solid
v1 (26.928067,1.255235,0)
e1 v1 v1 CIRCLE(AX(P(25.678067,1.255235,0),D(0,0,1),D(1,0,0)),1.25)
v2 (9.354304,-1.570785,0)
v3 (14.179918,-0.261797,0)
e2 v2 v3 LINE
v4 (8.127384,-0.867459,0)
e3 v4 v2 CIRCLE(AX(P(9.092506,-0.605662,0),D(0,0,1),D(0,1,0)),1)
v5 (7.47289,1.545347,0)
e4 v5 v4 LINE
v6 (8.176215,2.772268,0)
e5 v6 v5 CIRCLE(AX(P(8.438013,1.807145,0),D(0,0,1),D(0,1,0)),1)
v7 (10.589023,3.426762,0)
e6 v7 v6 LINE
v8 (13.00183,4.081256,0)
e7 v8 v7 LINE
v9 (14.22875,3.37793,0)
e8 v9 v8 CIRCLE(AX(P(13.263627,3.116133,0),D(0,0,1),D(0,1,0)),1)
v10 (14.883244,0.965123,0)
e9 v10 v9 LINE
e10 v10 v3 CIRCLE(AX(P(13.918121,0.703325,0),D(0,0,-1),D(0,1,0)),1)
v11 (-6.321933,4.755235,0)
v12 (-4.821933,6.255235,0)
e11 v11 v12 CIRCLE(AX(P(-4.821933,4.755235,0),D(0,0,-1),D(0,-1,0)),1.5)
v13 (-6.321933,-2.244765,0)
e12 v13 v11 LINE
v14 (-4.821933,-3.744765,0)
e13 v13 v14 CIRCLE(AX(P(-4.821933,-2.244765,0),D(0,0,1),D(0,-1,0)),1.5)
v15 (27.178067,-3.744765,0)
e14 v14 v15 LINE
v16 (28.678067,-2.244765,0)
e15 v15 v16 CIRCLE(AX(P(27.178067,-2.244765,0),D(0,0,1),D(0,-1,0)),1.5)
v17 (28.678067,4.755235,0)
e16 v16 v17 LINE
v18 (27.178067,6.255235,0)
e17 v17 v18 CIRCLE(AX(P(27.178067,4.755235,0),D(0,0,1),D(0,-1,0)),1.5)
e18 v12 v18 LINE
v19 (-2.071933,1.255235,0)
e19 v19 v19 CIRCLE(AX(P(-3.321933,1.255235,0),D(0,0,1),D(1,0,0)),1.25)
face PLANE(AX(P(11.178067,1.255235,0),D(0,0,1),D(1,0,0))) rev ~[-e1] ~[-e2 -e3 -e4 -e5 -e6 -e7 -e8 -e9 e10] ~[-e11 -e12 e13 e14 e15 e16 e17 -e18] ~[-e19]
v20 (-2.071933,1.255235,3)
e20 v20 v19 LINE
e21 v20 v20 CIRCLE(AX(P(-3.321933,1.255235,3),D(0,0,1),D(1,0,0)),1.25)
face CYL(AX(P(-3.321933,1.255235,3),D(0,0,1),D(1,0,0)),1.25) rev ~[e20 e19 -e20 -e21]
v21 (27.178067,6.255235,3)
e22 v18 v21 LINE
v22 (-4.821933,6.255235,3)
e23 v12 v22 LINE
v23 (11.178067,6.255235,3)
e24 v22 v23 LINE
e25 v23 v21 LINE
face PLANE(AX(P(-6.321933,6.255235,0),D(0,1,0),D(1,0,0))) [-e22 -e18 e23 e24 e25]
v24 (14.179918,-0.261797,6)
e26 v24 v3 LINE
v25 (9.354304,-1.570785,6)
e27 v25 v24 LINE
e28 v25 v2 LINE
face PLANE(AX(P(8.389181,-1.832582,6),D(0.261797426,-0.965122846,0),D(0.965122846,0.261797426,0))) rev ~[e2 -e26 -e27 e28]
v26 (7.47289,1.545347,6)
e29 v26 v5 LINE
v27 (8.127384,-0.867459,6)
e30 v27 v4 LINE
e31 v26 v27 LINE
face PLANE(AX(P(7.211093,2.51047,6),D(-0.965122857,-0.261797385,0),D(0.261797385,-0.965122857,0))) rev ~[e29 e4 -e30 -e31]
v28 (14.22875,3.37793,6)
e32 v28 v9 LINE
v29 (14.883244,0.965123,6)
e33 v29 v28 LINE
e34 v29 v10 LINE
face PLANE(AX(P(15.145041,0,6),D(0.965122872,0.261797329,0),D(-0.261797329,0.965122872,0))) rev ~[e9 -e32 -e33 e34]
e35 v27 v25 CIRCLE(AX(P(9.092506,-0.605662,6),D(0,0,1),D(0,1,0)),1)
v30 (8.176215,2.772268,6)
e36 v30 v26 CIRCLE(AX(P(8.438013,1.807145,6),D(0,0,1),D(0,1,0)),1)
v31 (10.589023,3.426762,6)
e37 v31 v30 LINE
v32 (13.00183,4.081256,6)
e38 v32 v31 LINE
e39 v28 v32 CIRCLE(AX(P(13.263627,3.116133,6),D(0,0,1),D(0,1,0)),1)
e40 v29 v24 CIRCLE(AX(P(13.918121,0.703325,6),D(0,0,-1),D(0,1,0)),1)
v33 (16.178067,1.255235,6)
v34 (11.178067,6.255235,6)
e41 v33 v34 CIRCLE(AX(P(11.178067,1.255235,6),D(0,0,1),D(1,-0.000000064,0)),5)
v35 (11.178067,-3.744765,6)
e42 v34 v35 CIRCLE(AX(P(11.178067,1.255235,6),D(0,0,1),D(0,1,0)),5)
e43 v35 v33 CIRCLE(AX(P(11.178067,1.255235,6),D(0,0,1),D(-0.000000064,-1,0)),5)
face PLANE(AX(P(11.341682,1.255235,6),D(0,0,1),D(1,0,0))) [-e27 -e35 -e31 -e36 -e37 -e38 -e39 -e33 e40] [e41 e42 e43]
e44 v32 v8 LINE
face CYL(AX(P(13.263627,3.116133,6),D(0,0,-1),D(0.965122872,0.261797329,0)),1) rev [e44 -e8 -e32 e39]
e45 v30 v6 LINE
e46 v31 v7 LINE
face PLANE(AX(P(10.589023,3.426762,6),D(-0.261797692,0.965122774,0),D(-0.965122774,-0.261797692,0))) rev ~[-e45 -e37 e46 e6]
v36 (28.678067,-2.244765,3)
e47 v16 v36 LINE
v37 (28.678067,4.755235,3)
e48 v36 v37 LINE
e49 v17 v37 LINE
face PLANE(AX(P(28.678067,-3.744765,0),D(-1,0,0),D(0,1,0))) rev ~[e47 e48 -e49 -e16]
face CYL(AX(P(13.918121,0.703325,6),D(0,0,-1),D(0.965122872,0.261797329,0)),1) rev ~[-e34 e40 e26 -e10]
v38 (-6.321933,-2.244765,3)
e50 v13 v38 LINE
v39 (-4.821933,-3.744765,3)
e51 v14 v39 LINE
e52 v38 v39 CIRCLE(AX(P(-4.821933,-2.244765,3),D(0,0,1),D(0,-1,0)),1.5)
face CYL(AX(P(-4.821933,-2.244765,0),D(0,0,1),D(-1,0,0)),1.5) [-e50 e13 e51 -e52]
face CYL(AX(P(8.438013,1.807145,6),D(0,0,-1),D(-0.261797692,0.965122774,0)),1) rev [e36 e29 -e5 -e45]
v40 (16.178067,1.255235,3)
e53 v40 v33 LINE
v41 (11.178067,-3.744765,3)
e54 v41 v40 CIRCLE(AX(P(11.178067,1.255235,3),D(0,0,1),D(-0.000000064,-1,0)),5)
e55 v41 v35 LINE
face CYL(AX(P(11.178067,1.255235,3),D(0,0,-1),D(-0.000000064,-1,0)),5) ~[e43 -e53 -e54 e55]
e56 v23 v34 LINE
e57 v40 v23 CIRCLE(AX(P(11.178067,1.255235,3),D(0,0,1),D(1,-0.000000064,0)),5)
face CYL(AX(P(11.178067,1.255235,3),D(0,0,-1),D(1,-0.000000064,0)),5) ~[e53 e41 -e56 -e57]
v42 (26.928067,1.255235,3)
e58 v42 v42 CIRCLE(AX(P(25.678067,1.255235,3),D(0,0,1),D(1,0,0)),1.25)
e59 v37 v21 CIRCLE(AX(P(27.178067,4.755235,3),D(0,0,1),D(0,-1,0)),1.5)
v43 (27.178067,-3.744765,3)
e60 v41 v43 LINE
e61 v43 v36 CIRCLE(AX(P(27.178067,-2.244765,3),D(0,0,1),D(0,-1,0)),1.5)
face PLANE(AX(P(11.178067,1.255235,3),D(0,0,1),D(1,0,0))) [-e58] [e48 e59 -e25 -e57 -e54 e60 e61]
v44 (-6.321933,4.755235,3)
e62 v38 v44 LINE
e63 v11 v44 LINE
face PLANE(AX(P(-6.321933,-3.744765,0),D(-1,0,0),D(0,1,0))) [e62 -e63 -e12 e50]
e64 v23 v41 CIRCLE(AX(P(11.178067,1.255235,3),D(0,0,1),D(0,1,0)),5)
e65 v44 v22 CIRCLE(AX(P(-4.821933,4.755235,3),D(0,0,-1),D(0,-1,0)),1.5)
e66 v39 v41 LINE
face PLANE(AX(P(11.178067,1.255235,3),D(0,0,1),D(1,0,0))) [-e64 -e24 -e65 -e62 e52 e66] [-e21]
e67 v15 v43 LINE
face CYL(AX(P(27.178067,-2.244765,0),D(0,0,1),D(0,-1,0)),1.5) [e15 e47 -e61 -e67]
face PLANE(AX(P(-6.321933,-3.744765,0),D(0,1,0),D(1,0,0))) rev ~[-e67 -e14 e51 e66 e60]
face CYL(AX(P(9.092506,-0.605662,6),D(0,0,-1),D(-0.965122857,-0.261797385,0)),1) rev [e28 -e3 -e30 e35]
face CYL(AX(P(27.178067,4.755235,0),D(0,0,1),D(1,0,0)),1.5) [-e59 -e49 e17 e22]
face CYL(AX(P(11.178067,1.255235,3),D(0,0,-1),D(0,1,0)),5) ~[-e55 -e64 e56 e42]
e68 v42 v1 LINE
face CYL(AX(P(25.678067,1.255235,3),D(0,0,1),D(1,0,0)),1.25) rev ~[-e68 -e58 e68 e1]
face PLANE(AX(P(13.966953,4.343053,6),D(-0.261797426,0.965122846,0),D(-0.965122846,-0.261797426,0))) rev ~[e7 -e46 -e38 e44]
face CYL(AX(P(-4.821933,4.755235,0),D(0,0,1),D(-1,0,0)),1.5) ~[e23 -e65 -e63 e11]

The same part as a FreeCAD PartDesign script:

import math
import FreeCAD as App
import Part
import Sketcher

V = App.Vector


def edges_at(feature, points):
    """Names of the edges that pass closest to the given points."""
    edges = feature.Shape.Edges
    near = lambda p: min(range(len(edges)), key=lambda i: edges[i].distToShape(Part.Vertex(*p))[0])
    return sorted({f"Edge{near(p) + 1}" for p in points})


def add_polygon(sketch, points):
    """Adds a closed chain of lines whose ends are joined by coincident constraints."""
    first, n = sketch.GeometryCount, len(points)
    for a, b in zip(points, points[1:] + points[:1]):
        sketch.addGeometry(Part.LineSegment(App.Vector(*a, 0), App.Vector(*b, 0)), False)
    for i in range(n):
        sketch.addConstraint(Sketcher.Constraint("Coincident", first + i, 2, first + (i + 1) % n, 1))

doc = App.newDocument("Part")
params = doc.addObject("Spreadsheet::Sheet", "Params")
for row, (alias, value) in enumerate([
    ("sketch1_width", "35 mm"),
    ("sketch1_height", "10 mm"),
    ("pad1_length", "3 mm"),
    ("fillet_radius", "1.5 mm"),
    ("sketch2_radius", "5 mm"),
    ("pad2_length", "3 mm"),
    ("sketch3_length", "7 mm"),
    ("sketch3_length2", "4.5 mm"),
    ("pocket1_length", "6 mm"),
    ("fillet2_radius", "1 mm"),
    ("sketch4_diameter", "2.5 mm"),
    ("pocket2_length", "3 mm"),
    ("sketch5_diameter", "2.5 mm"),
    ("pocket3_length", "3 mm"),
], start=1):
    params.set(f"A{row}", alias)
    params.set(f"B{row}", "=" + value)
    params.setAlias(f"B{row}", alias)

body = doc.addObject("PartDesign::Body", "Body")

# Sketch on XY plane
sketch1 = body.newObject("Sketcher::SketchObject", "Sketch")
sketch1.AttachmentSupport = (doc.getObject("XY_Plane"), [""])
sketch1.MapMode = "FlatFace"
add_polygon(sketch1, [(-6, 6), (-6, -4), (29, -4), (29, 6)])  # lines 0-3
sketch1.addConstraint(Sketcher.Constraint("Vertical", 0))
sketch1.addConstraint(Sketcher.Constraint("Horizontal", 1))
sketch1.addConstraint(Sketcher.Constraint("Vertical", 2))
sketch1.addConstraint(Sketcher.Constraint("Horizontal", 3))
sketch1.addConstraint(Sketcher.Constraint("DistanceX", 1, 1, 1, 2, 35.0))
sketch1.addConstraint(Sketcher.Constraint("DistanceY", 0, 2, 0, 1, 10.0))
sketch1.addConstraint(Sketcher.Constraint("DistanceX", 0, 2, -1, 1, 6.321933))
sketch1.addConstraint(Sketcher.Constraint("DistanceY", 0, 2, -1, 1, 3.744765))
sketch1.setExpression("Constraints[8]", "Params.sketch1_width")
sketch1.setExpression("Constraints[9]", "Params.sketch1_height")
pad1 = body.newObject("PartDesign::Pad", "Pad")
pad1.Profile = sketch1
pad1.setExpression("Length", "Params.pad1_length")
doc.recompute()

fillet = body.newObject("PartDesign::Fillet", "Fillet")
fillet.Base = (pad1, edges_at(pad1, [
    (-6.322, -3.745, 1.5),
    (-6.322, 6.255, 1.5),
    (28.678, -3.745, 1.5),
    (28.678, 6.255, 1.5),
]))
fillet.setExpression("Radius", "Params.fillet_radius")

# Sketch on XY plane
sketch2 = body.newObject("Sketcher::SketchObject", "Sketch001")
sketch2.AttachmentSupport = (doc.getObject("XY_Plane"), [""])
sketch2.MapMode = "FlatFace"
sketch2.AttachmentOffset = App.Placement(V(0, 0, 3), App.Rotation())
sketch2.addGeometry(Part.ArcOfCircle(Part.Circle(V(11.2, 1.3, 0), V(0, 0, 1), 5), math.radians(-90), math.radians(0)), False)
sketch2.addGeometry(Part.ArcOfCircle(Part.Circle(V(11.2, 1.3, 0), V(0, 0, 1), 5), math.radians(0), math.radians(90)), False)
sketch2.addGeometry(Part.ArcOfCircle(Part.Circle(V(11.2, 1.3, 0), V(0, 0, 1), 5), math.radians(90), math.radians(270)), False)
sketch2.addConstraint(Sketcher.Constraint("Tangent", 0, 2, 1, 1))
sketch2.addConstraint(Sketcher.Constraint("Tangent", 1, 2, 2, 1))
sketch2.addConstraint(Sketcher.Constraint("Tangent", 2, 2, 0, 1))
sketch2.addConstraint(Sketcher.Constraint("Horizontal", 2, 3, 0, 2))
sketch2.addConstraint(Sketcher.Constraint("Vertical", 2, 3, 1, 2))
sketch2.addConstraint(Sketcher.Constraint("Vertical", 1, 2, 2, 2))
sketch2.addConstraint(Sketcher.Constraint("Radius", 0, 5.0))
sketch2.addConstraint(Sketcher.Constraint("DistanceX", -1, 1, 0, 3, 11.178067))
sketch2.addConstraint(Sketcher.Constraint("DistanceY", -1, 1, 0, 3, 1.255235))
sketch2.setExpression("Constraints[6]", "Params.sketch2_radius")
pad2 = body.newObject("PartDesign::Pad", "Pad001")
pad2.Profile = sketch2
pad2.setExpression("Length", "Params.pad2_length")

# Sketch on XY plane
sketch3 = body.newObject("Sketcher::SketchObject", "Sketch002")
sketch3.AttachmentSupport = (doc.getObject("XY_Plane"), [""])
sketch3.MapMode = "FlatFace"
sketch3.AttachmentOffset = App.Placement(V(0, 0, 6), App.Rotation())
add_polygon(sketch3, [(15.1, 0), (14, 4.3), (10.6, 3.4), (7.2, 2.5), (8.4, -1.8)])  # lines 0-4
sketch3.addConstraint(Sketcher.Constraint("PointOnObject", 4, 2, -1))
sketch3.addConstraint(Sketcher.Constraint("Perpendicular", 0, 1))
sketch3.addConstraint(Sketcher.Constraint("Parallel", 1, 2))
sketch3.addConstraint(Sketcher.Constraint("Perpendicular", 2, 3))
sketch3.addConstraint(Sketcher.Constraint("Perpendicular", 3, 4))
sketch3.addConstraint(Sketcher.Constraint("Equal", 1, 2))
sketch3.addConstraint(Sketcher.Constraint("Distance", 4, 7.0))
sketch3.addConstraint(Sketcher.Constraint("Distance", 0, 4.5))
sketch3.addConstraint(Sketcher.Constraint("DistanceY", -1, 1, 2, 2, 2.51047))
sketch3.addConstraint(Sketcher.Constraint("DistanceX", -1, 1, 3, 2, 8.389181))
sketch3.setExpression("Constraints[11]", "Params.sketch3_length")
sketch3.setExpression("Constraints[12]", "Params.sketch3_length2")
pocket1 = body.newObject("PartDesign::Pocket", "Pocket")
pocket1.Profile = sketch3
pocket1.setExpression("Length", "Params.pocket1_length")
doc.recompute()

fillet2 = body.newObject("PartDesign::Fillet", "Fillet001")
fillet2.Base = (pocket1, edges_at(pocket1, [
    (7.211, 2.51, 3),
    (8.389, -1.833, 3),
    (15.145, 0, 3),
    (13.967, 4.343, 3),
]))
fillet2.setExpression("Radius", "Params.fillet2_radius")

# Sketch on XY plane
sketch4 = body.newObject("Sketcher::SketchObject", "Sketch003")
sketch4.AttachmentSupport = (doc.getObject("XY_Plane"), [""])
sketch4.MapMode = "FlatFace"
sketch4.AttachmentOffset = App.Placement(V(0, 0, 3), App.Rotation())
sketch4.addGeometry(Part.Circle(V(-3.3, 1.3, 0), V(0, 0, 1), 1.2), False)
sketch4.addConstraint(Sketcher.Constraint("Diameter", 0, 2.5))
sketch4.addConstraint(Sketcher.Constraint("DistanceX", 0, 3, -1, 1, 3.321933))
sketch4.addConstraint(Sketcher.Constraint("DistanceY", -1, 1, 0, 3, 1.255235))
sketch4.setExpression("Constraints[0]", "Params.sketch4_diameter")
pocket2 = body.newObject("PartDesign::Pocket", "Pocket001")
pocket2.Profile = sketch4
pocket2.setExpression("Length", "Params.pocket2_length")

# Sketch on XY plane
sketch5 = body.newObject("Sketcher::SketchObject", "Sketch004")
sketch5.AttachmentSupport = (doc.getObject("XY_Plane"), [""])
sketch5.MapMode = "FlatFace"
sketch5.AttachmentOffset = App.Placement(V(0, 0, 3), App.Rotation())
sketch5.addGeometry(Part.Circle(V(25.7, 1.3, 0), V(0, 0, 1), 1.2), False)
sketch5.addConstraint(Sketcher.Constraint("Diameter", 0, 2.5))
sketch5.addConstraint(Sketcher.Constraint("DistanceX", -1, 1, 0, 3, 25.678067))
sketch5.addConstraint(Sketcher.Constraint("DistanceY", -1, 1, 0, 3, 1.255235))
sketch5.setExpression("Constraints[0]", "Params.sketch5_diameter")
pocket3 = body.newObject("PartDesign::Pocket", "Pocket002")
pocket3.Profile = sketch5
pocket3.setExpression("Length", "Params.pocket3_length")

doc.recompute()
